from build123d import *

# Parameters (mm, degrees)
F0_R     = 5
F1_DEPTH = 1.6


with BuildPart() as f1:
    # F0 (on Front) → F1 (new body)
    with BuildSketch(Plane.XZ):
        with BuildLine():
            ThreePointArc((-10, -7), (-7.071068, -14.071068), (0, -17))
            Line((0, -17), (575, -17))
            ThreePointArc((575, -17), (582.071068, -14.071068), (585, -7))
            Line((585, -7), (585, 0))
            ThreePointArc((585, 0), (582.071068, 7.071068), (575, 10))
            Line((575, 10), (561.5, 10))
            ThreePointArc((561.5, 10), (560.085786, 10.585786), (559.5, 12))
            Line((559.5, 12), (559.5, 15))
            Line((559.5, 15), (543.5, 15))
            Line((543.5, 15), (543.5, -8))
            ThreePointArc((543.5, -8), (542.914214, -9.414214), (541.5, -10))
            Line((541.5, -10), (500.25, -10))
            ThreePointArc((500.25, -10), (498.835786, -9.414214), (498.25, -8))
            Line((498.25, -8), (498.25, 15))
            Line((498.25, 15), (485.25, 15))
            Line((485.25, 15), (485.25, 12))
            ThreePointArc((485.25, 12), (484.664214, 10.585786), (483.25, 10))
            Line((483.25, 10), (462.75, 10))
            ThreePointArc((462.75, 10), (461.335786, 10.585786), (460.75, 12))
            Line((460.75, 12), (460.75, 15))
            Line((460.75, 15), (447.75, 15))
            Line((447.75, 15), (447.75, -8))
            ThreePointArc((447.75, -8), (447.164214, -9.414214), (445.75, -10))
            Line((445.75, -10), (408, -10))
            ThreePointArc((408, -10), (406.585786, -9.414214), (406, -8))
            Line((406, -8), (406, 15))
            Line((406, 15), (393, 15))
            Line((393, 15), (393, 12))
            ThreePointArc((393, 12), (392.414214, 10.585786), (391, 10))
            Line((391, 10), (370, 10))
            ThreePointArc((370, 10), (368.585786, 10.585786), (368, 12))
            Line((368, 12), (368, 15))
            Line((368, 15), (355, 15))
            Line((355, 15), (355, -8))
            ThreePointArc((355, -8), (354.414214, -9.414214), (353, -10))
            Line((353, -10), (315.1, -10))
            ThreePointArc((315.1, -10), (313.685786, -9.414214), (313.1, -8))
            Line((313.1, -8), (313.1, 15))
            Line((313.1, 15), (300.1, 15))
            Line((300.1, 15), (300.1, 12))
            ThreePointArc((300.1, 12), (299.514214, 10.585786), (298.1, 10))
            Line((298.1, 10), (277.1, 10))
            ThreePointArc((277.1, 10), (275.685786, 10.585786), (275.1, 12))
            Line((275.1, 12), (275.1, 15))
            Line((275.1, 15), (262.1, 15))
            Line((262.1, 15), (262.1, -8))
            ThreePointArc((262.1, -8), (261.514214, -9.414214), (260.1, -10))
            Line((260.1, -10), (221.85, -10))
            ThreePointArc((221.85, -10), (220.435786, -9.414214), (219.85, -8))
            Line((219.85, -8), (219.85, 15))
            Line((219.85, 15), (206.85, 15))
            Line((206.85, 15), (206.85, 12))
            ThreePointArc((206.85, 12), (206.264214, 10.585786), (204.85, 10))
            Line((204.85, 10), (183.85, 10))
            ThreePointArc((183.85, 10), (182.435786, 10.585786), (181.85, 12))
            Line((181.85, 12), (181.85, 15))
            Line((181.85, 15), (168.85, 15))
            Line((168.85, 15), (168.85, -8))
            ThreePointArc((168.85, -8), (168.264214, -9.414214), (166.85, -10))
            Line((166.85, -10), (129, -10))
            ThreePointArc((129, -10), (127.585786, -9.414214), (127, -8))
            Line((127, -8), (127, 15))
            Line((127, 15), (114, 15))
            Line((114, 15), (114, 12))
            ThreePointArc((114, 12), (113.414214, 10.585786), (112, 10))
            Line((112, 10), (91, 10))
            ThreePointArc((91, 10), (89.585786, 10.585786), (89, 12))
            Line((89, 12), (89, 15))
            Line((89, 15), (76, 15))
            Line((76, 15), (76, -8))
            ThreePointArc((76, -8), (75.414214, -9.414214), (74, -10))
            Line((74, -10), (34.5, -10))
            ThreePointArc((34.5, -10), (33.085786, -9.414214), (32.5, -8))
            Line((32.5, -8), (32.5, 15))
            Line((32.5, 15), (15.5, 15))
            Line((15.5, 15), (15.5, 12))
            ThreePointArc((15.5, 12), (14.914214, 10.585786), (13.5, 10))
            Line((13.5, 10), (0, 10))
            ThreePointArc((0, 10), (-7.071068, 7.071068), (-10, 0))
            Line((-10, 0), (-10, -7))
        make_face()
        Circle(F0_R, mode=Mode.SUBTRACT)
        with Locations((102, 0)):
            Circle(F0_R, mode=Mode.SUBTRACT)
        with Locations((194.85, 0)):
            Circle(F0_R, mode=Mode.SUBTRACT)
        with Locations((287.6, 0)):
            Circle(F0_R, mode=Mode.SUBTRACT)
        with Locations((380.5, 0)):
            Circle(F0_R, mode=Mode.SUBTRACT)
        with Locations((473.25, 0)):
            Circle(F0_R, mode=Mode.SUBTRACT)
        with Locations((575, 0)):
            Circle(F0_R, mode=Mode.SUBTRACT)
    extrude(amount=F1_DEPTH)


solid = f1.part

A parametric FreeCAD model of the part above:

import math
import FreeCAD as App
import Part
import Sketcher
Q = App.Units.Quantity

doc = App.newDocument("Part")
params = doc.addObject("Spreadsheet::Sheet", "Params")
for row, (alias, value) in enumerate([
    ("sketch1_diameter", "10 mm"),
    ("sketch1_radius", "9.999999 mm"),
    ("sketch1_radius2", "1.999999 mm"),
    ("sketch1_width", "575 mm"),
    ("sketch1_width2", "16 mm"),
    ("pad1_length", "1.6 mm"),
], start=1):
    params.set(f"A{row}", alias)
    params.set(f"B{row}", "=" + value)
    params.setAlias(f"B{row}", alias)

body = doc.addObject("PartDesign::Body", "Body")

# Sketch on XZ plane
sketch1 = body.newObject("Sketcher::SketchObject", "Sketch")
sketch1.AttachmentSupport = (doc.getObject("XZ_Plane"), [""])
sketch1.MapMode = "FlatFace"
sketch1.addGeometry([
    Part.ArcOfCircle(Part.Circle(App.Vector(0, -7, 0), App.Vector(0, 0, 1), 10), math.radians(180), math.radians(270)),  # 0
    Part.LineSegment(App.Vector(0, -17, 0), App.Vector(575, -17, 0)),  # 1
    Part.ArcOfCircle(Part.Circle(App.Vector(575, -7, 0), App.Vector(0, 0, 1), 10), math.radians(-90), math.radians(0)),  # 2
    Part.LineSegment(App.Vector(585, -7, 0), App.Vector(585, 0, 0)),  # 3
    Part.ArcOfCircle(Part.Circle(App.Vector(575, 0, 0), App.Vector(0, 0, 1), 10), math.radians(0), math.radians(90)),  # 4
    Part.LineSegment(App.Vector(575, 10, 0), App.Vector(561.5, 10, 0)),  # 5
    Part.ArcOfCircle(Part.Circle(App.Vector(561.5, 12, 0), App.Vector(0, 0, 1), 2), math.radians(180), math.radians(270)),  # 6
    Part.LineSegment(App.Vector(559.5, 12, 0), App.Vector(559.5, 15, 0)),  # 7
    Part.LineSegment(App.Vector(559.5, 15, 0), App.Vector(543.5, 15, 0)),  # 8
    Part.LineSegment(App.Vector(543.5, 15, 0), App.Vector(543.5, -8, 0)),  # 9
    Part.ArcOfCircle(Part.Circle(App.Vector(541.5, -8, 0), App.Vector(0, 0, 1), 2), math.radians(-90), math.radians(0)),  # 10
    Part.LineSegment(App.Vector(541.5, -10, 0), App.Vector(500.2, -10, 0)),  # 11
    Part.ArcOfCircle(Part.Circle(App.Vector(500.2, -8, 0), App.Vector(0, 0, 1), 2), math.radians(180), math.radians(270)),  # 12
    Part.LineSegment(App.Vector(498.2, -8, 0), App.Vector(498.2, 15, 0)),  # 13
    Part.LineSegment(App.Vector(498.2, 15, 0), App.Vector(485.2, 15, 0)),  # 14
    Part.LineSegment(App.Vector(485.2, 15, 0), App.Vector(485.2, 12, 0)),  # 15
    Part.ArcOfCircle(Part.Circle(App.Vector(483.3, 12, 0), App.Vector(0, 0, 1), 2), math.radians(-90), math.radians(0)),  # 16
    Part.LineSegment(App.Vector(483.2, 10, 0), App.Vector(462.8, 10, 0)),  # 17
    Part.ArcOfCircle(Part.Circle(App.Vector(462.7, 12, 0), App.Vector(0, 0, 1), 2), math.radians(180), math.radians(270)),  # 18
    Part.LineSegment(App.Vector(460.8, 12, 0), App.Vector(460.8, 15, 0)),  # 19
    Part.LineSegment(App.Vector(460.8, 15, 0), App.Vector(447.8, 15, 0)),  # 20
    Part.LineSegment(App.Vector(447.8, 15, 0), App.Vector(447.8, -8, 0)),  # 21
    Part.ArcOfCircle(Part.Circle(App.Vector(445.8, -8, 0), App.Vector(0, 0, 1), 2), math.radians(-90), math.radians(0)),  # 22
    Part.LineSegment(App.Vector(445.8, -10, 0), App.Vector(408, -10, 0)),  # 23
    Part.ArcOfCircle(Part.Circle(App.Vector(408, -8, 0), App.Vector(0, 0, 1), 2), math.radians(180), math.radians(270)),  # 24
    Part.LineSegment(App.Vector(406, -8, 0), App.Vector(406, 15, 0)),  # 25
    Part.LineSegment(App.Vector(406, 15, 0), App.Vector(393, 15, 0)),  # 26
    Part.LineSegment(App.Vector(393, 15, 0), App.Vector(393, 12, 0)),  # 27
    Part.ArcOfCircle(Part.Circle(App.Vector(391, 12, 0), App.Vector(0, 0, 1), 2), math.radians(-90), math.radians(0)),  # 28
    Part.LineSegment(App.Vector(391, 10, 0), App.Vector(370, 10, 0)),  # 29
    Part.ArcOfCircle(Part.Circle(App.Vector(370, 12, 0), App.Vector(0, 0, 1), 2), math.radians(180), math.radians(270)),  # 30
    Part.LineSegment(App.Vector(368, 12, 0), App.Vector(368, 15, 0)),  # 31
    Part.LineSegment(App.Vector(368, 15, 0), App.Vector(355, 15, 0)),  # 32
    Part.LineSegment(App.Vector(355, 15, 0), App.Vector(355, -8, 0)),  # 33
    Part.ArcOfCircle(Part.Circle(App.Vector(353, -8, 0), App.Vector(0, 0, 1), 2), math.radians(-90), math.radians(0)),  # 34
    Part.LineSegment(App.Vector(353, -10, 0), App.Vector(315.1, -10, 0)),  # 35
    Part.ArcOfCircle(Part.Circle(App.Vector(315.1, -8, 0), App.Vector(0, 0, 1), 2), math.radians(180), math.radians(270)),  # 36
    Part.LineSegment(App.Vector(313.1, -8, 0), App.Vector(313.1, 15, 0)),  # 37
    Part.LineSegment(App.Vector(313.1, 15, 0), App.Vector(300.1, 15, 0)),  # 38
    Part.LineSegment(App.Vector(300.1, 15, 0), App.Vector(300.1, 12, 0)),  # 39
    Part.ArcOfCircle(Part.Circle(App.Vector(298.1, 12, 0), App.Vector(0, 0, 1), 2), math.radians(-90), math.radians(0)),  # 40
    Part.LineSegment(App.Vector(298.1, 10, 0), App.Vector(277.1, 10, 0)),  # 41
    Part.ArcOfCircle(Part.Circle(App.Vector(277.1, 12, 0), App.Vector(0, 0, 1), 2), math.radians(180), math.radians(270)),  # 42
    Part.LineSegment(App.Vector(275.1, 12, 0), App.Vector(275.1, 15, 0)),  # 43
    Part.LineSegment(App.Vector(275.1, 15, 0), App.Vector(262.1, 15, 0)),  # 44
    Part.LineSegment(App.Vector(262.1, 15, 0), App.Vector(262.1, -8, 0)),  # 45
    Part.ArcOfCircle(Part.Circle(App.Vector(260.1, -8, 0), App.Vector(0, 0, 1), 2), math.radians(-90), math.radians(0)),  # 46
    Part.LineSegment(App.Vector(260.1, -10, 0), App.Vector(221.8, -10, 0)),  # 47
    Part.ArcOfCircle(Part.Circle(App.Vector(221.8, -8, 0), App.Vector(0, 0, 1), 2), math.radians(180), math.radians(270)),  # 48
    Part.LineSegment(App.Vector(219.8, -8, 0), App.Vector(219.8, 15, 0)),  # 49
    Part.LineSegment(App.Vector(219.8, 15, 0), App.Vector(206.8, 15, 0)),  # 50
    Part.LineSegment(App.Vector(206.8, 15, 0), App.Vector(206.8, 12, 0)),  # 51
    Part.ArcOfCircle(Part.Circle(App.Vector(204.9, 12, 0), App.Vector(0, 0, 1), 2), math.radians(-90), math.radians(0)),  # 52
    Part.LineSegment(App.Vector(204.8, 10, 0), App.Vector(183.8, 10, 0)),  # 53
    Part.ArcOfCircle(Part.Circle(App.Vector(183.8, 12, 0), App.Vector(0, 0, 1), 2), math.radians(180), math.radians(270)),  # 54
    Part.LineSegment(App.Vector(181.8, 12, 0), App.Vector(181.8, 15, 0)),  # 55
    Part.LineSegment(App.Vector(181.8, 15, 0), App.Vector(168.8, 15, 0)),  # 56
    Part.LineSegment(App.Vector(168.8, 15, 0), App.Vector(168.8, -8, 0)),  # 57
    Part.ArcOfCircle(Part.Circle(App.Vector(166.9, -8, 0), App.Vector(0, 0, 1), 2), math.radians(-90), math.radians(0)),  # 58
    Part.LineSegment(App.Vector(166.8, -10, 0), App.Vector(129, -10, 0)),  # 59
    Part.ArcOfCircle(Part.Circle(App.Vector(129, -8, 0), App.Vector(0, 0, 1), 2), math.radians(180), math.radians(270)),  # 60
    Part.LineSegment(App.Vector(127, -8, 0), App.Vector(127, 15, 0)),  # 61
    Part.LineSegment(App.Vector(127, 15, 0), App.Vector(114, 15, 0)),  # 62
    Part.LineSegment(App.Vector(114, 15, 0), App.Vector(114, 12, 0)),  # 63
    Part.ArcOfCircle(Part.Circle(App.Vector(112, 12, 0), App.Vector(0, 0, 1), 2), math.radians(-90), math.radians(0)),  # 64
    Part.LineSegment(App.Vector(112, 10, 0), App.Vector(91, 10, 0)),  # 65
    Part.ArcOfCircle(Part.Circle(App.Vector(91, 12, 0), App.Vector(0, 0, 1), 2), math.radians(180), math.radians(270)),  # 66
    Part.LineSegment(App.Vector(89, 12, 0), App.Vector(89, 15, 0)),  # 67
    Part.LineSegment(App.Vector(89, 15, 0), App.Vector(76, 15, 0)),  # 68
    Part.LineSegment(App.Vector(76, 15, 0), App.Vector(76, -8, 0)),  # 69
    Part.ArcOfCircle(Part.Circle(App.Vector(74, -8, 0), App.Vector(0, 0, 1), 2), math.radians(-90), math.radians(0)),  # 70
    Part.LineSegment(App.Vector(74, -10, 0), App.Vector(34.5, -10, 0)),  # 71
    Part.ArcOfCircle(Part.Circle(App.Vector(34.5, -8, 0), App.Vector(0, 0, 1), 2), math.radians(180), math.radians(270)),  # 72
    Part.LineSegment(App.Vector(32.5, -8, 0), App.Vector(32.5, 15, 0)),  # 73
    Part.LineSegment(App.Vector(32.5, 15, 0), App.Vector(15.5, 15, 0)),  # 74
    Part.LineSegment(App.Vector(15.5, 15, 0), App.Vector(15.5, 12, 0)),  # 75
    Part.ArcOfCircle(Part.Circle(App.Vector(13.5, 12, 0), App.Vector(0, 0, 1), 2), math.radians(-90), math.radians(0)),  # 76
    Part.LineSegment(App.Vector(13.5, 10, 0), App.Vector(0, 10, 0)),  # 77
    Part.ArcOfCircle(Part.Circle(App.Vector(0, 0, 0), App.Vector(0, 0, 1), 10), math.radians(90), math.radians(180)),  # 78
    Part.LineSegment(App.Vector(-10, 0, 0), App.Vector(-10, -7, 0)),  # 79
    Part.Circle(App.Vector(0, 0, 0), App.Vector(0, 0, 1), 5),  # 80
    Part.Circle(App.Vector(102, 0, 0), App.Vector(0, 0, 1), 5),  # 81
    Part.Circle(App.Vector(194.8, 0, 0), App.Vector(0, 0, 1), 5),  # 82
    Part.Circle(App.Vector(287.6, 0, 0), App.Vector(0, 0, 1), 5),  # 83
    Part.Circle(App.Vector(380.5, 0, 0), App.Vector(0, 0, 1), 5),  # 84
    Part.Circle(App.Vector(473.2, 0, 0), App.Vector(0, 0, 1), 5),  # 85
    Part.Circle(App.Vector(575, 0, 0), App.Vector(0, 0, 1), 5),  # 86
], False)
sketch1.addConstraint([
    Sketcher.Constraint("Tangent", 0, 2, 1, 1),
    Sketcher.Constraint("Tangent", 1, 2, 2, 1),
    Sketcher.Constraint("Tangent", 2, 2, 3, 1),
    Sketcher.Constraint("Tangent", 3, 2, 4, 1),
    Sketcher.Constraint("Tangent", 4, 2, 5, 1),
    Sketcher.Constraint("Tangent", 5, 2, 6, 2),
    Sketcher.Constraint("Tangent", 6, 1, 7, 1),
    Sketcher.Constraint("Coincident", 7, 2, 8, 1),
    Sketcher.Constraint("Coincident", 8, 2, 9, 1),
    Sketcher.Constraint("Tangent", 9, 2, 10, 2),
    Sketcher.Constraint("Tangent", 10, 1, 11, 1),
    Sketcher.Constraint("Tangent", 11, 2, 12, 2),
    Sketcher.Constraint("Tangent", 12, 1, 13, 1),
    Sketcher.Constraint("Coincident", 13, 2, 14, 1),
    Sketcher.Constraint("Coincident", 14, 2, 15, 1),
    Sketcher.Constraint("Tangent", 15, 2, 16, 2),
    Sketcher.Constraint("Tangent", 16, 1, 17, 1),
    Sketcher.Constraint("Tangent", 17, 2, 18, 2),
    Sketcher.Constraint("Tangent", 18, 1, 19, 1),
    Sketcher.Constraint("Coincident", 19, 2, 20, 1),
    Sketcher.Constraint("Coincident", 20, 2, 21, 1),
    Sketcher.Constraint("Tangent", 21, 2, 22, 2),
    Sketcher.Constraint("Tangent", 22, 1, 23, 1),
    Sketcher.Constraint("Tangent", 23, 2, 24, 2),
    Sketcher.Constraint("Tangent", 24, 1, 25, 1),
    Sketcher.Constraint("Coincident", 25, 2, 26, 1),
    Sketcher.Constraint("Coincident", 26, 2, 27, 1),
    Sketcher.Constraint("Tangent", 27, 2, 28, 2),
    Sketcher.Constraint("Tangent", 28, 1, 29, 1),
    Sketcher.Constraint("Tangent", 29, 2, 30, 2),
    Sketcher.Constraint("Tangent", 30, 1, 31, 1),
    Sketcher.Constraint("Coincident", 31, 2, 32, 1),
    Sketcher.Constraint("Coincident", 32, 2, 33, 1),
    Sketcher.Constraint("Tangent", 33, 2, 34, 2),
    Sketcher.Constraint("Tangent", 34, 1, 35, 1),
    Sketcher.Constraint("Tangent", 35, 2, 36, 2),
    Sketcher.Constraint("Tangent", 36, 1, 37, 1),
    Sketcher.Constraint("Coincident", 37, 2, 38, 1),
    Sketcher.Constraint("Coincident", 38, 2, 39, 1),
    Sketcher.Constraint("Tangent", 39, 2, 40, 2),
    Sketcher.Constraint("Tangent", 40, 1, 41, 1),
    Sketcher.Constraint("Tangent", 41, 2, 42, 2),
    Sketcher.Constraint("Tangent", 42, 1, 43, 1),
    Sketcher.Constraint("Coincident", 43, 2, 44, 1),
    Sketcher.Constraint("Coincident", 44, 2, 45, 1),
    Sketcher.Constraint("Tangent", 45, 2, 46, 2),
    Sketcher.Constraint("Tangent", 46, 1, 47, 1),
    Sketcher.Constraint("Tangent", 47, 2, 48, 2),
    Sketcher.Constraint("Tangent", 48, 1, 49, 1),
    Sketcher.Constraint("Coincident", 49, 2, 50, 1),
    Sketcher.Constraint("Coincident", 50, 2, 51, 1),
    Sketcher.Constraint("Tangent", 51, 2, 52, 2),
    Sketcher.Constraint("Tangent", 52, 1, 53, 1),
    Sketcher.Constraint("Tangent", 53, 2, 54, 2),
    Sketcher.Constraint("Tangent", 54, 1, 55, 1),
    Sketcher.Constraint("Coincident", 55, 2, 56, 1),
    Sketcher.Constraint("Coincident", 56, 2, 57, 1),
    Sketcher.Constraint("Tangent", 57, 2, 58, 2),
    Sketcher.Constraint("Tangent", 58, 1, 59, 1),
    Sketcher.Constraint("Tangent", 59, 2, 60, 2),
    Sketcher.Constraint("Tangent", 60, 1, 61, 1),
    Sketcher.Constraint("Coincident", 61, 2, 62, 1),
    Sketcher.Constraint("Coincident", 62, 2, 63, 1),
    Sketcher.Constraint("Tangent", 63, 2, 64, 2),
    Sketcher.Constraint("Tangent", 64, 1, 65, 1),
    Sketcher.Constraint("Tangent", 65, 2, 66, 2),
    Sketcher.Constraint("Tangent", 66, 1, 67, 1),
    Sketcher.Constraint("Coincident", 67, 2, 68, 1),
    Sketcher.Constraint("Coincident", 68, 2, 69, 1),
    Sketcher.Constraint("Tangent", 69, 2, 70, 2),
    Sketcher.Constraint("Tangent", 70, 1, 71, 1),
    Sketcher.Constraint("Tangent", 71, 2, 72, 2),
    Sketcher.Constraint("Tangent", 72, 1, 73, 1),
    Sketcher.Constraint("Coincident", 73, 2, 74, 1),
    Sketcher.Constraint("Coincident", 74, 2, 75, 1),
    Sketcher.Constraint("Tangent", 75, 2, 76, 2),
    Sketcher.Constraint("Tangent", 76, 1, 77, 1),
    Sketcher.Constraint("Tangent", 77, 2, 78, 1),
    Sketcher.Constraint("Tangent", 78, 2, 79, 1),
    Sketcher.Constraint("Tangent", 79, 2, 0, 1),
    Sketcher.Constraint("Horizontal", 1),
    Sketcher.Constraint("Vertical", 3),
    Sketcher.Constraint("Horizontal", 5),
    Sketcher.Constraint("Vertical", 7),
    Sketcher.Constraint("Horizontal", 8),
    Sketcher.Constraint("Vertical", 9),
    Sketcher.Constraint("Horizontal", 11),
    Sketcher.Constraint("Vertical", 13),
    Sketcher.Constraint("Horizontal", 14),
    Sketcher.Constraint("Vertical", 15),
    Sketcher.Constraint("Horizontal", 17),
    Sketcher.Constraint("Vertical", 19),
    Sketcher.Constraint("Horizontal", 20),
    Sketcher.Constraint("Vertical", 21),
    Sketcher.Constraint("Horizontal", 23),
    Sketcher.Constraint("Vertical", 25),
    Sketcher.Constraint("Horizontal", 26),
    Sketcher.Constraint("Vertical", 27),
    Sketcher.Constraint("Horizontal", 29),
    Sketcher.Constraint("Vertical", 31),
    Sketcher.Constraint("Horizontal", 32),
    Sketcher.Constraint("Vertical", 33),
    Sketcher.Constraint("Horizontal", 35),
    Sketcher.Constraint("Vertical", 37),
    Sketcher.Constraint("Horizontal", 38),
    Sketcher.Constraint("Vertical", 39),
    Sketcher.Constraint("Horizontal", 41),
    Sketcher.Constraint("Vertical", 43),
    Sketcher.Constraint("Horizontal", 44),
    Sketcher.Constraint("Vertical", 45),
    Sketcher.Constraint("Horizontal", 47),
    Sketcher.Constraint("Vertical", 49),
    Sketcher.Constraint("Horizontal", 50),
    Sketcher.Constraint("Vertical", 51),
    Sketcher.Constraint("Horizontal", 53),
    Sketcher.Constraint("Vertical", 55),
    Sketcher.Constraint("Horizontal", 56),
    Sketcher.Constraint("Vertical", 57),
    Sketcher.Constraint("Horizontal", 59),
    Sketcher.Constraint("Vertical", 61),
    Sketcher.Constraint("Horizontal", 62),
    Sketcher.Constraint("Vertical", 63),
    Sketcher.Constraint("Horizontal", 65),
    Sketcher.Constraint("Vertical", 67),
    Sketcher.Constraint("Horizontal", 68),
    Sketcher.Constraint("Vertical", 69),
    Sketcher.Constraint("Horizontal", 71),
    Sketcher.Constraint("Vertical", 73),
    Sketcher.Constraint("Horizontal", 74),
    Sketcher.Constraint("Vertical", 75),
    Sketcher.Constraint("Horizontal", 77),
    Sketcher.Constraint("Vertical", 79),
    Sketcher.Constraint("Coincident", 78, 3, -1, 1),
    Sketcher.Constraint("Coincident", 80, 3, -1, 1),
    Sketcher.Constraint("Coincident", 86, 3, 4, 3),
    Sketcher.Constraint("Equal", 0, 2),
    Sketcher.Constraint("Equal", 2, 4),
    Sketcher.Constraint("Equal", 6, 10),
    Sketcher.Constraint("Equal", 10, 12),
    Sketcher.Constraint("Equal", 12, 16),
    Sketcher.Constraint("Equal", 16, 18),
    Sketcher.Constraint("Equal", 18, 22),
    Sketcher.Constraint("Equal", 22, 24),
    Sketcher.Constraint("Equal", 24, 28),
    Sketcher.Constraint("Equal", 28, 30),
    Sketcher.Constraint("Equal", 30, 34),
    Sketcher.Constraint("Equal", 34, 36),
    Sketcher.Constraint("Equal", 36, 40),
    Sketcher.Constraint("Equal", 40, 42),
    Sketcher.Constraint("Equal", 42, 46),
    Sketcher.Constraint("Equal", 46, 48),
    Sketcher.Constraint("Equal", 48, 52),
    Sketcher.Constraint("Equal", 52, 54),
    Sketcher.Constraint("Equal", 54, 58),
    Sketcher.Constraint("Equal", 58, 60),
    Sketcher.Constraint("Equal", 60, 64),
    Sketcher.Constraint("Equal", 64, 66),
    Sketcher.Constraint("Equal", 66, 70),
    Sketcher.Constraint("Equal", 70, 72),
    Sketcher.Constraint("Equal", 72, 76),
    Sketcher.Constraint("Equal", 4, 78),
    Sketcher.Constraint("Equal", 80, 81),
    Sketcher.Constraint("Equal", 81, 82),
    Sketcher.Constraint("Equal", 82, 83),
    Sketcher.Constraint("Equal", 83, 84),
    Sketcher.Constraint("Equal", 84, 85),
    Sketcher.Constraint("Equal", 85, 86),
    Sketcher.Constraint("PointOnObject", 4, 3, -1),
    Sketcher.Constraint("PointOnObject", 81, 3, -1),
    Sketcher.Constraint("PointOnObject", 82, 3, -1),
    Sketcher.Constraint("PointOnObject", 83, 3, -1),
    Sketcher.Constraint("PointOnObject", 84, 3, -1),
    Sketcher.Constraint("PointOnObject", 85, 3, -1),
    Sketcher.Constraint("Horizontal", 6, 3, 16, 3),
    Sketcher.Constraint("Horizontal", 12, 3, 22, 3),
    Sketcher.Constraint("Horizontal", 18, 3, 28, 3),
    Sketcher.Constraint("Horizontal", 24, 3, 34, 3),
    Sketcher.Constraint("Horizontal", 30, 3, 40, 3),
    Sketcher.Constraint("Horizontal", 36, 3, 46, 3),
    Sketcher.Constraint("Horizontal", 42, 3, 52, 3),
    Sketcher.Constraint("Horizontal", 48, 3, 58, 3),
    Sketcher.Constraint("Horizontal", 54, 3, 64, 3),
    Sketcher.Constraint("Horizontal", 60, 3, 70, 3),
    Sketcher.Constraint("Horizontal", 8, 2, 13, 2),
    Sketcher.Constraint("Horizontal", 14, 2, 19, 2),
    Sketcher.Constraint("Horizontal", 20, 2, 25, 2),
    Sketcher.Constraint("Horizontal", 26, 2, 31, 2),
    Sketcher.Constraint("Horizontal", 32, 2, 37, 2),
    Sketcher.Constraint("Horizontal", 38, 2, 43, 2),
    Sketcher.Constraint("Horizontal", 44, 2, 49, 2),
    Sketcher.Constraint("Horizontal", 50, 2, 55, 2),
    Sketcher.Constraint("Horizontal", 56, 2, 61, 2),
    Sketcher.Constraint("Horizontal", 62, 2, 67, 2),
    Sketcher.Constraint("Horizontal", 68, 2, 73, 2),
    Sketcher.Constraint("Equal", 14, 20),
    Sketcher.Constraint("Equal", 20, 26),
    Sketcher.Constraint("Equal", 26, 32),
    Sketcher.Constraint("Equal", 32, 38),
    Sketcher.Constraint("Equal", 29, 41),
    Sketcher.Constraint("Equal", 38, 44),
    Sketcher.Constraint("Equal", 44, 50),
    Sketcher.Constraint("Equal", 41, 53),
    Sketcher.Constraint("Equal", 50, 56),
    Sketcher.Constraint("Equal", 56, 62),
    Sketcher.Constraint("Equal", 53, 65),
    Sketcher.Constraint("Equal", 62, 68),
    Sketcher.Constraint("Equal", 5, 77),
    Sketcher.Constraint("Diameter", 80, Q("10 mm")),
    Sketcher.Constraint("Radius", 0, Q("9.999999 mm")),
    Sketcher.Constraint("Radius", 6, Q("1.999999 mm")),
    Sketcher.Constraint("DistanceX", 1, 1, 1, 2, Q("575 mm")),
    Sketcher.Constraint("DistanceX", 8, 2, 8, 1, Q("16 mm")),
    Sketcher.Constraint("DistanceX", 14, 2, 14, 1, Q("13 mm")),
    Sketcher.Constraint("DistanceX", 29, 2, 29, 1, Q("21 mm")),
    Sketcher.Constraint("DistanceX", 74, 2, 74, 1, Q("17 mm")),
    Sketcher.Constraint("DistanceY", 3, 1, 3, 2, Q("7 mm")),
    Sketcher.Constraint("DistanceY", 7, 1, 7, 2, Q("3 mm")),
    Sketcher.Constraint("DistanceY", 9, 2, 9, 1, Q("23 mm")),
    Sketcher.Constraint("DistanceX", 5, 2, 5, 1, Q("13.5 mm")),
    Sketcher.Constraint("DistanceX", 17, 2, 17, 1, Q("20.5 mm")),
    Sketcher.Constraint("DistanceX", 35, 2, 35, 1, Q("37.9 mm")),
    Sketcher.Constraint("DistanceX", 71, 2, 71, 1, Q("39.5 mm")),
    Sketcher.Constraint("DistanceX", -1, 1, 24, 3, Q("407.999999 mm")),
    Sketcher.Constraint("DistanceX", -1, 1, 81, 3, Q("102 mm")),
    Sketcher.Constraint("DistanceX", 11, 2, 11, 1, Q("41.25 mm")),
    Sketcher.Constraint("DistanceX", 47, 2, 47, 1, Q("38.25 mm")),
    Sketcher.Constraint("DistanceX", -1, 1, 83, 3, Q("287.6 mm")),
    Sketcher.Constraint("DistanceX", -1, 1, 84, 3, Q("380.5 mm")),
    Sketcher.Constraint("DistanceX", -1, 1, 82, 3, Q("194.85 mm")),
    Sketcher.Constraint("DistanceX", -1, 1, 85, 3, Q("473.25 mm")),
])
sketch1.setExpression("Constraints[207]", "Params.sketch1_diameter")
sketch1.setExpression("Constraints[208]", "Params.sketch1_radius")
sketch1.setExpression("Constraints[209]", "Params.sketch1_radius2")
sketch1.setExpression("Constraints[210]", "Params.sketch1_width")
sketch1.setExpression("Constraints[211]", "Params.sketch1_width2")
pad1 = body.newObject("PartDesign::Pad", "Pad")
pad1.Profile = sketch1
pad1.setExpression("Length", "Params.pad1_length")

doc.recompute()
